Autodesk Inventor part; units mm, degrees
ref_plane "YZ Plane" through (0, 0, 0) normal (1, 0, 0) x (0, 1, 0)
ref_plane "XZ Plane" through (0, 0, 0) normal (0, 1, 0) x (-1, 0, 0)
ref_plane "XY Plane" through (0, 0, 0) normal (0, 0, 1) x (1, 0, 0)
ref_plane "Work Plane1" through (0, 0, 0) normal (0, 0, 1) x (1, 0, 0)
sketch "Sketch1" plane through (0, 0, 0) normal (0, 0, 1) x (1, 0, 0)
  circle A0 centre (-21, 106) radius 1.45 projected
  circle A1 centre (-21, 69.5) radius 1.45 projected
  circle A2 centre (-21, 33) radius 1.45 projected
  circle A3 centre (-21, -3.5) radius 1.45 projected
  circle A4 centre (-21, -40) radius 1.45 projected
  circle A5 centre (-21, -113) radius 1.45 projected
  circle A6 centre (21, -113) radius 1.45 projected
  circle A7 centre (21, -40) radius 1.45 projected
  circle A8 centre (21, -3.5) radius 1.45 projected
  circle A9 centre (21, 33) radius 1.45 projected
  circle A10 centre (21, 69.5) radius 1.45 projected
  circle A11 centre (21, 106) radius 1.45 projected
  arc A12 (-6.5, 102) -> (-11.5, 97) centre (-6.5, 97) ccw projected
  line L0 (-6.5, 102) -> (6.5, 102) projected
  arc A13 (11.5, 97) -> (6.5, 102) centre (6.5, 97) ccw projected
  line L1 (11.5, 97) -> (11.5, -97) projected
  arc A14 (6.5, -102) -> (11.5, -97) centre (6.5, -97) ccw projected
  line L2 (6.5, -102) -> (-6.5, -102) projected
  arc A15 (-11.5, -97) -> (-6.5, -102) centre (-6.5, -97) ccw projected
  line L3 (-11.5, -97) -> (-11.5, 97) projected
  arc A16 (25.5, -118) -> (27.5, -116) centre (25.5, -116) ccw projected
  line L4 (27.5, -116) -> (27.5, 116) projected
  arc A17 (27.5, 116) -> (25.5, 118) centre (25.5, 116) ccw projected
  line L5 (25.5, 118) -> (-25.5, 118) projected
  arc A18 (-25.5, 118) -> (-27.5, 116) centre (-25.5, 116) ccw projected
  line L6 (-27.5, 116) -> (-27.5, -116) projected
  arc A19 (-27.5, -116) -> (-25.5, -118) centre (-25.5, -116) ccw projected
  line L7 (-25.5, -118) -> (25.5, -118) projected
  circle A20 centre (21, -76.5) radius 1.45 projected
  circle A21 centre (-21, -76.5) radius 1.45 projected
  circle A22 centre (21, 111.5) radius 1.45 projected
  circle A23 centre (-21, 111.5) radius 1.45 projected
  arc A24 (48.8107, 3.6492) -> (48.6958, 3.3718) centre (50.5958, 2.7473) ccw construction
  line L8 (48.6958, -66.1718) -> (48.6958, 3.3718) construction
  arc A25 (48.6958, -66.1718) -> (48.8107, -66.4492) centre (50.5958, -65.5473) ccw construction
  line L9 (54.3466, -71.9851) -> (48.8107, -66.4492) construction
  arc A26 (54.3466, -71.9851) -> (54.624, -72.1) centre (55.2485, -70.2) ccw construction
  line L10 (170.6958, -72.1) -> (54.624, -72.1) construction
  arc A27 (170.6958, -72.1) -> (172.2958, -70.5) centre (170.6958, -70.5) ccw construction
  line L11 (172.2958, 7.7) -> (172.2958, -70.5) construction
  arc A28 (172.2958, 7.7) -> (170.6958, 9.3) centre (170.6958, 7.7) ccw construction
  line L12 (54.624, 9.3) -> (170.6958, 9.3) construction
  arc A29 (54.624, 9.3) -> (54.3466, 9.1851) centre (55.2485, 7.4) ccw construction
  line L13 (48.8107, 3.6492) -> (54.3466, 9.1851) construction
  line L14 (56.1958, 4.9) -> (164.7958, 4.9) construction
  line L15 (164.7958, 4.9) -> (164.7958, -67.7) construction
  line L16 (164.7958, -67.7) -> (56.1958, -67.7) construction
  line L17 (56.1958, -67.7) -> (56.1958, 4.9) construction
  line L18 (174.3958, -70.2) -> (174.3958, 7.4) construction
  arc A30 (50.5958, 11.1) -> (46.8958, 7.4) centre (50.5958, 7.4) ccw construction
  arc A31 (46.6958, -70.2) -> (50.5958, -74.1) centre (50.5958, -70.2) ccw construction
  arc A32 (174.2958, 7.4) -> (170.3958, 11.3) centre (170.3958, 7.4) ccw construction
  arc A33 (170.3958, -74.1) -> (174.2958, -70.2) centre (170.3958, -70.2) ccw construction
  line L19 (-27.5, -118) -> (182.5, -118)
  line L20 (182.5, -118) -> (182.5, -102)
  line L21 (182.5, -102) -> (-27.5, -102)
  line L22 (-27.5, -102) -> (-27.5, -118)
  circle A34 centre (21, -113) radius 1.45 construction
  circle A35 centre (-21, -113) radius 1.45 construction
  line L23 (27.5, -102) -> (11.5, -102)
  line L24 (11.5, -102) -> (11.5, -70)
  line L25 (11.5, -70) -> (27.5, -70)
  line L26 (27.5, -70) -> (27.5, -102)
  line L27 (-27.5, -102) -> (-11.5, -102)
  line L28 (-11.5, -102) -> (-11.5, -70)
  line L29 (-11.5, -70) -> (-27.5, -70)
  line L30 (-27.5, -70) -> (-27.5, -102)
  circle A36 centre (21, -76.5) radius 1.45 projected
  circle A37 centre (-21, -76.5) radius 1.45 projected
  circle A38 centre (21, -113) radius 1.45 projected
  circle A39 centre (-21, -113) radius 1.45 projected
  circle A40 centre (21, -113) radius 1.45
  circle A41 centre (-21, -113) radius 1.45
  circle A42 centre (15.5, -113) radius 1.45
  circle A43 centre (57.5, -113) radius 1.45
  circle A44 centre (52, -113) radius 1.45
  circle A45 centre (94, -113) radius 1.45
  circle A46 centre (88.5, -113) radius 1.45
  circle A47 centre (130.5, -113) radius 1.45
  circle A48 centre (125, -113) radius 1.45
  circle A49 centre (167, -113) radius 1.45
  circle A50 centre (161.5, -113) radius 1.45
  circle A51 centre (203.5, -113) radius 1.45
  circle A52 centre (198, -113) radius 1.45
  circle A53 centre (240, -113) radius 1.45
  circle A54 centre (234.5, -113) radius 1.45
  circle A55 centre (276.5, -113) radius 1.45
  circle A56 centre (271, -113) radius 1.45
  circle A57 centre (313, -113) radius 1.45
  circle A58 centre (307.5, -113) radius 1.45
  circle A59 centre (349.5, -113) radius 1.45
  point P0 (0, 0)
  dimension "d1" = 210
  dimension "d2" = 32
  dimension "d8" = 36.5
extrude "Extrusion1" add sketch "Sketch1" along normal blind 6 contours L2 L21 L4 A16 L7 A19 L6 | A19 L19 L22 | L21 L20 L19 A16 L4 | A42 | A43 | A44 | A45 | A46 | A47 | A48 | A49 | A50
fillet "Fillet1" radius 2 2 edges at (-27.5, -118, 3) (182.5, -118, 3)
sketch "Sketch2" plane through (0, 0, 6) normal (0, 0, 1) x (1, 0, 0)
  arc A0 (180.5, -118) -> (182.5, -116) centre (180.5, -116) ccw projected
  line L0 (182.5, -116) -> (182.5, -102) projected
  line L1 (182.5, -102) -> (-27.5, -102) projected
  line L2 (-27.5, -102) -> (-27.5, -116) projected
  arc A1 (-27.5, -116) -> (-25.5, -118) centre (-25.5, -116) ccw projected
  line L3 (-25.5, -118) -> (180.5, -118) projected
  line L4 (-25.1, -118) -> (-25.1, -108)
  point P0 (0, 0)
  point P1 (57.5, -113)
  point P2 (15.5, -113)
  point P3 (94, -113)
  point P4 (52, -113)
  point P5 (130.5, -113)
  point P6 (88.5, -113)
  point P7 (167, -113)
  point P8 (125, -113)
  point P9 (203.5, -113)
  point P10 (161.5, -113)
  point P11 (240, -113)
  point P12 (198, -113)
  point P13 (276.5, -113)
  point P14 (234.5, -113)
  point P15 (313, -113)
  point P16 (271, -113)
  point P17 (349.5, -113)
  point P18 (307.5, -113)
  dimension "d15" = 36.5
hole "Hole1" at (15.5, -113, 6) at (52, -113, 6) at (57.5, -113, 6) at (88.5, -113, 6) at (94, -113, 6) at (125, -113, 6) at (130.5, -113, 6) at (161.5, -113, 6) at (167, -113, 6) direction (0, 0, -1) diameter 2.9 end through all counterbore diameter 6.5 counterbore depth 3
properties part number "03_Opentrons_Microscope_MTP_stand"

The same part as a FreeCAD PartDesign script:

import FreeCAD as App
import Part
import Sketcher

V = App.Vector
Q = App.Units.Quantity


def edges_at(feature, points):
    """Names of the edges that pass closest to the given points."""
    edges = feature.Shape.Edges
    near = lambda p: min(range(len(edges)), key=lambda i: edges[i].distToShape(Part.Vertex(*p))[0])
    return sorted({f"Edge{near(p) + 1}" for p in points})


def add_polygon(sketch, points):
    """Adds a closed chain of lines whose ends are joined by coincident constraints."""
    first, n = sketch.GeometryCount, len(points)
    for a, b in zip(points, points[1:] + points[:1]):
        sketch.addGeometry(Part.LineSegment(App.Vector(*a, 0), App.Vector(*b, 0)), False)
    for i in range(n):
        sketch.addConstraint(Sketcher.Constraint("Coincident", first + i, 2, first + (i + 1) % n, 1))

doc = App.newDocument("Part")
body = doc.addObject("PartDesign::Body", "Body")

# Sketch on XY plane
sketch1 = doc.addObject("Sketcher::SketchObject", "Sketch")
body.addObject(sketch1)
sketch1.AttachmentSupport = (doc.XY_Plane, [""])
sketch1.MapMode = "FlatFace"
add_polygon(sketch1, [(-27.5, -102), (-27.5, -118), (182.5, -118), (182.5, -102)])  # lines 0-3
sketch1.addGeometry(Part.Circle(V(-21, -113, 0), V(0, 0, 1), 1.45), False)  # 4
sketch1.addGeometry(Part.Circle(V(21, -113, 0), V(0, 0, 1), 1.45), False)  # 5
sketch1.addConstraint(Sketcher.Constraint("Vertical", 0))
sketch1.addConstraint(Sketcher.Constraint("Horizontal", 1))
sketch1.addConstraint(Sketcher.Constraint("Vertical", 2))
sketch1.addConstraint(Sketcher.Constraint("Horizontal", 3))
sketch1.addConstraint(Sketcher.Constraint("Equal", 4, 5))
sketch1.addConstraint(Sketcher.Constraint("Symmetric", 4, 3, 5, 3, -2))
sketch1.addConstraint(Sketcher.Constraint("DistanceX", 1, 1, 1, 2, Q("210 mm")))
sketch1.addConstraint(Sketcher.Constraint("Diameter", 4, Q("2.9 mm")))
sketch1.addConstraint(Sketcher.Constraint("DistanceY", 0, 2, 0, 1, Q("16 mm")))
sketch1.addConstraint(Sketcher.Constraint("DistanceX", 4, 3, -1, 1, Q("21 mm")))
sketch1.addConstraint(Sketcher.Constraint("DistanceY", 4, 3, -1, 1, Q("113 mm")))
sketch1.addConstraint(Sketcher.Constraint("DistanceY", 0, 2, -1, 1, Q("118 mm")))
sketch1.addConstraint(Sketcher.Constraint("DistanceX", 0, 2, -1, 1, Q("27.5 mm")))
pad1 = doc.addObject("PartDesign::Pad", "Pad")
body.addObject(pad1)
pad1.Profile = sketch1
pad1.Length = 6
doc.recompute()

fillet = doc.addObject("PartDesign::Fillet", "Fillet")
body.addObject(fillet)
fillet.Base = (pad1, edges_at(pad1, [(-27.5, -118, 3), (182.5, -118, 3)]))
fillet.Radius = 2

# Sketch on XY plane
sketch2 = doc.addObject("Sketcher::SketchObject", "Sketch001")
body.addObject(sketch2)
sketch2.AttachmentSupport = (doc.XY_Plane, [""])
sketch2.MapMode = "FlatFace"
sketch2.AttachmentOffset = App.Placement(V(0, 0, 6), App.Rotation())
sketch2.addGeometry(Part.Circle(V(15.5, -113, 0), V(0, 0, 1), 1.45), False)
sketch2.addGeometry(Part.Circle(V(52, -113, 0), V(0, 0, 1), 1.45), False)
sketch2.addGeometry(Part.Circle(V(57.5, -113, 0), V(0, 0, 1), 1.45), False)
sketch2.addGeometry(Part.Circle(V(88.5, -113, 0), V(0, 0, 1), 1.45), False)
sketch2.addGeometry(Part.Circle(V(94, -113, 0), V(0, 0, 1), 1.45), False)
sketch2.addGeometry(Part.Circle(V(125, -113, 0), V(0, 0, 1), 1.45), False)
sketch2.addGeometry(Part.Circle(V(130.5, -113, 0), V(0, 0, 1), 1.45), False)
sketch2.addGeometry(Part.Circle(V(161.5, -113, 0), V(0, 0, 1), 1.45), False)
sketch2.addGeometry(Part.Circle(V(167, -113, 0), V(0, 0, 1), 1.45), False)
sketch2.addConstraint(Sketcher.Constraint("Equal", 0, 1))
sketch2.addConstraint(Sketcher.Constraint("Equal", 1, 2))
sketch2.addConstraint(Sketcher.Constraint("Equal", 2, 3))
sketch2.addConstraint(Sketcher.Constraint("Equal", 3, 4))
sketch2.addConstraint(Sketcher.Constraint("Equal", 4, 5))
sketch2.addConstraint(Sketcher.Constraint("Equal", 5, 6))
sketch2.addConstraint(Sketcher.Constraint("Equal", 6, 7))
sketch2.addConstraint(Sketcher.Constraint("Equal", 7, 8))
sketch2.addConstraint(Sketcher.Constraint("Horizontal", 0, 3, 1, 3))
sketch2.addConstraint(Sketcher.Constraint("Horizontal", 1, 3, 2, 3))
sketch2.addConstraint(Sketcher.Constraint("Horizontal", 2, 3, 3, 3))
sketch2.addConstraint(Sketcher.Constraint("Horizontal", 3, 3, 4, 3))
sketch2.addConstraint(Sketcher.Constraint("Horizontal", 4, 3, 5, 3))
sketch2.addConstraint(Sketcher.Constraint("Horizontal", 5, 3, 6, 3))
sketch2.addConstraint(Sketcher.Constraint("Horizontal", 6, 3, 7, 3))
sketch2.addConstraint(Sketcher.Constraint("Horizontal", 7, 3, 8, 3))
sketch2.addConstraint(Sketcher.Constraint("Diameter", 0, Q("2.9 mm")))
sketch2.addConstraint(Sketcher.Constraint("DistanceY", 0, 3, -1, 1, Q("113 mm")))
sketch2.addConstraint(Sketcher.Constraint("DistanceX", -1, 1, 1, 3, Q("52 mm")))
sketch2.addConstraint(Sketcher.Constraint("DistanceX", -1, 1, 4, 3, Q("94 mm")))
sketch2.addConstraint(Sketcher.Constraint("DistanceX", -1, 1, 5, 3, Q("125 mm")))
sketch2.addConstraint(Sketcher.Constraint("DistanceX", -1, 1, 8, 3, Q("167 mm")))
sketch2.addConstraint(Sketcher.Constraint("DistanceX", 0, 3, 2, 3, Q("42 mm")))
sketch2.addConstraint(Sketcher.Constraint("DistanceX", 2, 3, 3, 3, Q("31 mm")))
sketch2.addConstraint(Sketcher.Constraint("DistanceX", 3, 3, 6, 3, Q("42 mm")))
sketch2.addConstraint(Sketcher.Constraint("DistanceX", 6, 3, 7, 3, Q("31 mm")))
sketch2.addConstraint(Sketcher.Constraint("DistanceX", -1, 1, 0, 3, Q("15.5 mm")))
doc.recompute()
hole = doc.addObject("PartDesign::Hole", "Hole")
body.addObject(hole)
hole.Profile = sketch2
hole.ThreadType = "None"
hole.Diameter = 2.9
hole.DepthType = "ThroughAll"
hole.HoleCutType = "Counterbore"
hole.HoleCutDiameter = 6.5
hole.HoleCutDepth = 3

doc.recompute()
